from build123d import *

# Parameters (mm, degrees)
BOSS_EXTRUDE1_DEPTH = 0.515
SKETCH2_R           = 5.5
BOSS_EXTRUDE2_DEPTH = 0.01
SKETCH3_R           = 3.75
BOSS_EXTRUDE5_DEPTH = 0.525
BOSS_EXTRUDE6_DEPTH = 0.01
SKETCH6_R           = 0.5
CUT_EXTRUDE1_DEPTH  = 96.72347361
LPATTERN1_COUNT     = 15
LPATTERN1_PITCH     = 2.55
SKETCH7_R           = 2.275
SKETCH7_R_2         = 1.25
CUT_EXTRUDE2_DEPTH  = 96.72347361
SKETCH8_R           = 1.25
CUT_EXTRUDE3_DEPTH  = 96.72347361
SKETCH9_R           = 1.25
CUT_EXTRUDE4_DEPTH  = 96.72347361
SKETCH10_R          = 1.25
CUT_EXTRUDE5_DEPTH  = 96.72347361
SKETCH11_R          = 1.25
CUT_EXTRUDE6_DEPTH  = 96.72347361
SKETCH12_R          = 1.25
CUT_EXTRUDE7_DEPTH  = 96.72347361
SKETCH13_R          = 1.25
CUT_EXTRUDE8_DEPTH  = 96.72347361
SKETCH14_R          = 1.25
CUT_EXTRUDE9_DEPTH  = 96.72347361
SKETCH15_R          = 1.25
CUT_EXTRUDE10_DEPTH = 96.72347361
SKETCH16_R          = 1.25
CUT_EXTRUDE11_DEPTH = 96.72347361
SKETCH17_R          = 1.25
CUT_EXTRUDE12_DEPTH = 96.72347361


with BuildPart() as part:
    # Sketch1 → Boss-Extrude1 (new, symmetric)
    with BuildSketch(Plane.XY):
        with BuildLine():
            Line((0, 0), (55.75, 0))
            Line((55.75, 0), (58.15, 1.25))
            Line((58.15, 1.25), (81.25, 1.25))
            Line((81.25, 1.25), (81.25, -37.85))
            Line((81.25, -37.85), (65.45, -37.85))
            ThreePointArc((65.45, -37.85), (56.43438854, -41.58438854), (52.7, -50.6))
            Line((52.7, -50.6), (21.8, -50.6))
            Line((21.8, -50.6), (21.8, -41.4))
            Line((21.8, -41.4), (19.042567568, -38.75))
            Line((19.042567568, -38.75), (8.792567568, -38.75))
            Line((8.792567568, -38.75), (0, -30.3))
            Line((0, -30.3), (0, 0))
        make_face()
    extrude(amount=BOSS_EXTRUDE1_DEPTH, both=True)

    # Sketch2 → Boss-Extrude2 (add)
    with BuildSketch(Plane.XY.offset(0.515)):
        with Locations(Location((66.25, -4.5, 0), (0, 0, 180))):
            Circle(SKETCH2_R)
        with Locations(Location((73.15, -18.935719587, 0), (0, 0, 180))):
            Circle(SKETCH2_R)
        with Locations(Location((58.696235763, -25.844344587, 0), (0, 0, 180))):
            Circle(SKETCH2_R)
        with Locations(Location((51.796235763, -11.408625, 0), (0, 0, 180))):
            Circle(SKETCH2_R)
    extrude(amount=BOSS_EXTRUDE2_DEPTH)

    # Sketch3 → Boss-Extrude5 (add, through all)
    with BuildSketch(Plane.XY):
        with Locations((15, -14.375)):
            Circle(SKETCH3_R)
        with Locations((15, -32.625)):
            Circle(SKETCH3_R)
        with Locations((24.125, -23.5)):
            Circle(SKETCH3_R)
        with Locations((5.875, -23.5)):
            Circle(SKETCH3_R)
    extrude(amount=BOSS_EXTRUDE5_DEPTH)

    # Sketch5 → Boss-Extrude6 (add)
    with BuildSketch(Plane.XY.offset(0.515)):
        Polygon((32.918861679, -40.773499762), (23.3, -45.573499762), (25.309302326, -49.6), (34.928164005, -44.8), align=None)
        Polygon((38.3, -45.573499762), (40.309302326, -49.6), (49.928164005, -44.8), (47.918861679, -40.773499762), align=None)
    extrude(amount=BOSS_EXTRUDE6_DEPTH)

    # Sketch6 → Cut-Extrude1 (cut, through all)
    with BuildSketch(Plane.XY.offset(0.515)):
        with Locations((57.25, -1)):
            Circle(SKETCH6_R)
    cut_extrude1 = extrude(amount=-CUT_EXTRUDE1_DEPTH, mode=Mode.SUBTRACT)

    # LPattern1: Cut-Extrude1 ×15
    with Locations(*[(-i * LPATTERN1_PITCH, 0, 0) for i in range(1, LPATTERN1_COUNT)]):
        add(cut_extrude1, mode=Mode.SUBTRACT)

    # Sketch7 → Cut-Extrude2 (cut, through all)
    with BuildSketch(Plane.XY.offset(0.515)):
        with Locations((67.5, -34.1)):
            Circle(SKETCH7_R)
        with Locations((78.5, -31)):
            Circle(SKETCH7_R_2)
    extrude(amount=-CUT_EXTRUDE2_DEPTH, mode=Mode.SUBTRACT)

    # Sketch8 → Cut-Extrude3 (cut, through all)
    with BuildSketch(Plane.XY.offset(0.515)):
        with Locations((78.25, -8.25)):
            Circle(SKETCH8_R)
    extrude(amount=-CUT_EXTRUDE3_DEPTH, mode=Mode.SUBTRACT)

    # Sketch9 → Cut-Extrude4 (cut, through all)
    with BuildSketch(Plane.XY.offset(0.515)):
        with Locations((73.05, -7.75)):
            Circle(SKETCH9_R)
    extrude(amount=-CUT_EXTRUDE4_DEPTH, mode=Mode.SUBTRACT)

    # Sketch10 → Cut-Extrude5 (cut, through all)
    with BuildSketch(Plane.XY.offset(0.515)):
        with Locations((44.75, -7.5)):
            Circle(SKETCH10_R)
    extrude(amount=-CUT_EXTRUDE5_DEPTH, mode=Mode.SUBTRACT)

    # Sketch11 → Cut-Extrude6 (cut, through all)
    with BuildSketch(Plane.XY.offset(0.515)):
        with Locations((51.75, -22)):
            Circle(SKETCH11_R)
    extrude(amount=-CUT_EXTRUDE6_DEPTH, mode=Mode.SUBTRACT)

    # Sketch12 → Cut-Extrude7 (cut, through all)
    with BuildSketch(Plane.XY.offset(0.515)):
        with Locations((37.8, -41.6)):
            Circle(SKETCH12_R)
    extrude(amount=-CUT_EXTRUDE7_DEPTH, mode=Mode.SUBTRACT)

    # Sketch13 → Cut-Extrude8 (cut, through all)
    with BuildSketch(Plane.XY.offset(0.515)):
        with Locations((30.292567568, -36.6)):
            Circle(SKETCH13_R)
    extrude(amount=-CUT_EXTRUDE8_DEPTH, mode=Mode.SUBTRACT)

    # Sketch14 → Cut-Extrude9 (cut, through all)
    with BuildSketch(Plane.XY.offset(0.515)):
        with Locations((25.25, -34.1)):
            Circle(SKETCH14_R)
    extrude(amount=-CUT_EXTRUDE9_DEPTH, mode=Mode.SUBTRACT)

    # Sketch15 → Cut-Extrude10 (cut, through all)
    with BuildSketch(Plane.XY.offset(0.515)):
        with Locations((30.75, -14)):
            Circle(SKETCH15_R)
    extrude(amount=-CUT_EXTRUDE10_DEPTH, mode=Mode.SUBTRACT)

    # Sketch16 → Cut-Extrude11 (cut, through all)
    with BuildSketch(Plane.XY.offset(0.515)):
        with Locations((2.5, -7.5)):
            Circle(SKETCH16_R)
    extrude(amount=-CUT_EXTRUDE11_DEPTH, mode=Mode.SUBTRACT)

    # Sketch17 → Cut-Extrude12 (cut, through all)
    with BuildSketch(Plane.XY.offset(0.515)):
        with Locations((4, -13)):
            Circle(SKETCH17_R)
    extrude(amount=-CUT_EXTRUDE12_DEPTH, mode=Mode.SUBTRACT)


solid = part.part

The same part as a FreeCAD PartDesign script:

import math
import FreeCAD as App
import Part
import Sketcher
from FreeCAD import Vector
Q = App.Units.Quantity

doc = App.newDocument("Part")
body = doc.addObject("PartDesign::Body", "Body")

# Sketch on XY plane
sketch1 = doc.addObject("Sketcher::SketchObject", "Sketch")
body.addObject(sketch1)
sketch1.AttachmentSupport = (doc.XY_Plane, [""])
sketch1.MapMode = "FlatFace"
sketch1.addGeometry(Part.LineSegment(Vector(55.8, 0, 0), Vector(0, 0, 0)), False)
sketch1.addGeometry(Part.LineSegment(Vector(0, 0, 0), Vector(0, -30.3, 0)), False)
sketch1.addGeometry(Part.LineSegment(Vector(0, -30.3, 0), Vector(8.8, -38.8, 0)), False)
sketch1.addGeometry(Part.LineSegment(Vector(8.8, -38.8, 0), Vector(19, -38.8, 0)), False)
sketch1.addGeometry(Part.LineSegment(Vector(19, -38.8, 0), Vector(21.8, -41.4, 0)), False)
sketch1.addGeometry(Part.LineSegment(Vector(21.8, -41.4, 0), Vector(21.8, -50.6, 0)), False)
sketch1.addGeometry(Part.LineSegment(Vector(21.8, -50.6, 0), Vector(52.7, -50.6, 0)), False)
sketch1.addGeometry(Part.ArcOfCircle(Part.Circle(Vector(65.5, -50.6, 0), Vector(0, 0, 1), 12.8), math.radians(90), math.radians(180)), False)
sketch1.addGeometry(Part.LineSegment(Vector(65.5, -37.9, 0), Vector(81.2, -37.9, 0)), False)
sketch1.addGeometry(Part.LineSegment(Vector(81.2, -37.9, 0), Vector(81.2, 1.2, 0)), False)
sketch1.addGeometry(Part.LineSegment(Vector(81.2, 1.2, 0), Vector(58.1, 1.2, 0)), False)
sketch1.addGeometry(Part.LineSegment(Vector(58.1, 1.2, 0), Vector(55.8, 0, 0)), False)
sketch1.addConstraint(Sketcher.Constraint("Coincident", 0, 2, 1, 1))
sketch1.addConstraint(Sketcher.Constraint("Coincident", 1, 2, 2, 1))
sketch1.addConstraint(Sketcher.Constraint("Coincident", 2, 2, 3, 1))
sketch1.addConstraint(Sketcher.Constraint("Coincident", 3, 2, 4, 1))
sketch1.addConstraint(Sketcher.Constraint("Coincident", 4, 2, 5, 1))
sketch1.addConstraint(Sketcher.Constraint("Coincident", 5, 2, 6, 1))
sketch1.addConstraint(Sketcher.Constraint("Coincident", 6, 2, 7, 2))
sketch1.addConstraint(Sketcher.Constraint("Tangent", 7, 1, 8, 1))
sketch1.addConstraint(Sketcher.Constraint("Coincident", 8, 2, 9, 1))
sketch1.addConstraint(Sketcher.Constraint("Coincident", 9, 2, 10, 1))
sketch1.addConstraint(Sketcher.Constraint("Coincident", 10, 2, 11, 1))
sketch1.addConstraint(Sketcher.Constraint("Coincident", 11, 2, 0, 1))
sketch1.addConstraint(Sketcher.Constraint("Horizontal", 0))
sketch1.addConstraint(Sketcher.Constraint("Vertical", 1))
sketch1.addConstraint(Sketcher.Constraint("Horizontal", 3))
sketch1.addConstraint(Sketcher.Constraint("Vertical", 5))
sketch1.addConstraint(Sketcher.Constraint("Horizontal", 6))
sketch1.addConstraint(Sketcher.Constraint("Horizontal", 8))
sketch1.addConstraint(Sketcher.Constraint("Vertical", 9))
sketch1.addConstraint(Sketcher.Constraint("Horizontal", 10))
sketch1.addConstraint(Sketcher.Constraint("Coincident", 0, 2, -1, 1))
sketch1.addConstraint(Sketcher.Constraint("Parallel", 2, 4))
sketch1.addConstraint(Sketcher.Constraint("Horizontal", 7, 3, 5, 2))
sketch1.addConstraint(Sketcher.Constraint("Radius", 7, Q("12.75 mm")))
sketch1.addConstraint(Sketcher.Constraint("DistanceX", 6, 1, 6, 2, Q("30.9 mm")))
sketch1.addConstraint(Sketcher.Constraint("DistanceX", 8, 1, 8, 2, Q("15.8 mm")))
sketch1.addConstraint(Sketcher.Constraint("DistanceX", 10, 2, 10, 1, Q("23.1 mm")))
sketch1.addConstraint(Sketcher.Constraint("DistanceY", 1, 2, 1, 1, Q("30.3 mm")))
sketch1.addConstraint(Sketcher.Constraint("DistanceY", 5, 2, 5, 1, Q("9.2 mm")))
sketch1.addConstraint(Sketcher.Constraint("DistanceY", 9, 1, 9, 2, Q("39.1 mm")))
sketch1.addConstraint(Sketcher.Constraint("DistanceX", 0, 2, 0, 1, Q("55.75 mm")))
sketch1.addConstraint(Sketcher.Constraint("DistanceX", 3, 1, 3, 2, Q("10.25 mm")))
sketch1.addConstraint(Sketcher.Constraint("DistanceY", 7, 3, -1, 1, Q("50.6 mm")))
sketch1.addConstraint(Sketcher.Constraint("DistanceX", -1, 1, 4, 2, Q("21.8 mm")))
sketch1.addConstraint(Sketcher.Constraint("DistanceY", 3, 2, 7, 1, Q("0.9 mm")))
pad1 = doc.addObject("PartDesign::Pad", "Pad")
body.addObject(pad1)
pad1.Profile = sketch1
pad1.Length = 1.03
pad1.Midplane = True

# Sketch on XY plane
sketch2 = doc.addObject("Sketcher::SketchObject", "Sketch001")
body.addObject(sketch2)
sketch2.AttachmentSupport = (doc.XY_Plane, [""])
sketch2.MapMode = "FlatFace"
sketch2.AttachmentOffset = App.Placement(Vector(0, 0, 0.515), App.Rotation())
sketch2.addGeometry(Part.Circle(Vector(66, -4, 0), Vector(0, 0, 1), 6), False)
sketch2.addGeometry(Part.Circle(Vector(73, -19, 0), Vector(0, 0, 1), 6), False)
sketch2.addGeometry(Part.Circle(Vector(59, -26, 0), Vector(0, 0, 1), 6), False)
sketch2.addGeometry(Part.Circle(Vector(52, -11, 0), Vector(0, 0, 1), 6), False)
sketch2.addConstraint(Sketcher.Constraint("Equal", 0, 1))
sketch2.addConstraint(Sketcher.Constraint("Equal", 1, 2))
sketch2.addConstraint(Sketcher.Constraint("Equal", 2, 3))
sketch2.addConstraint(Sketcher.Constraint("Diameter", 0, Q("11 mm")))
sketch2.addConstraint(Sketcher.Constraint("DistanceY", 0, 3, -1, 1, Q("4.5 mm")))
sketch2.addConstraint(Sketcher.Constraint("DistanceX", 0, 3, 1, 3, Q("6.9 mm")))
sketch2.addConstraint(Sketcher.Constraint("DistanceX", 3, 3, 2, 3, Q("6.9 mm")))
sketch2.addConstraint(Sketcher.Constraint("DistanceX", -1, 1, 0, 3, Q("66.25 mm")))
sketch2.addConstraint(Sketcher.Constraint("DistanceY", 1, 3, -1, 1, Q("18.93572 mm")))
sketch2.addConstraint(Sketcher.Constraint("DistanceY", 2, 3, 3, 3, Q("14.43572 mm")))
sketch2.addConstraint(Sketcher.Constraint("DistanceX", -1, 1, 2, 3, Q("58.696236 mm")))
sketch2.addConstraint(Sketcher.Constraint("DistanceY", 2, 3, -1, 1, Q("25.844345 mm")))
pad2 = doc.addObject("PartDesign::Pad", "Pad001")
body.addObject(pad2)
pad2.Profile = sketch2
pad2.Length = 0.01

# Sketch on XY plane
sketch3 = doc.addObject("Sketcher::SketchObject", "Sketch002")
body.addObject(sketch3)
sketch3.AttachmentSupport = (doc.XY_Plane, [""])
sketch3.MapMode = "FlatFace"
sketch3.addGeometry(Part.Circle(Vector(15, -14.4, 0), Vector(0, 0, 1), 3.8), False)
sketch3.addGeometry(Part.Circle(Vector(15, -32.6, 0), Vector(0, 0, 1), 3.8), False)
sketch3.addGeometry(Part.Circle(Vector(24.1, -23.5, 0), Vector(0, 0, 1), 3.8), False)
sketch3.addGeometry(Part.Circle(Vector(5.9, -23.5, 0), Vector(0, 0, 1), 3.8), False)
sketch3.addConstraint(Sketcher.Constraint("Equal", 0, 1))
sketch3.addConstraint(Sketcher.Constraint("Equal", 1, 2))
sketch3.addConstraint(Sketcher.Constraint("Equal", 2, 3))
sketch3.addConstraint(Sketcher.Constraint("Horizontal", 2, 3, 3, 3))
sketch3.addConstraint(Sketcher.Constraint("Vertical", 0, 3, 1, 3))
sketch3.addConstraint(Sketcher.Constraint("Diameter", 0, Q("7.5 mm")))
sketch3.addConstraint(Sketcher.Constraint("DistanceX", -1, 1, 0, 3, Q("15 mm")))
sketch3.addConstraint(Sketcher.Constraint("DistanceY", 2, 3, -1, 1, Q("23.5 mm")))
sketch3.addConstraint(Sketcher.Constraint("DistanceY", 1, 3, 0, 3, Q("18.25 mm")))
sketch3.addConstraint(Sketcher.Constraint("DistanceX", 3, 3, 2, 3, Q("18.25 mm")))
sketch3.addConstraint(Sketcher.Constraint("DistanceY", 0, 3, -1, 1, Q("14.375 mm")))
sketch3.addConstraint(Sketcher.Constraint("DistanceX", -1, 1, 2, 3, Q("24.125 mm")))
pad3 = doc.addObject("PartDesign::Pad", "Pad002")
body.addObject(pad3)
pad3.Profile = sketch3
pad3.Length = 0.525

# Sketch on XY plane
sketch4 = doc.addObject("Sketcher::SketchObject", "Sketch003")
body.addObject(sketch4)
sketch4.AttachmentSupport = (doc.XY_Plane, [""])
sketch4.MapMode = "FlatFace"
sketch4.AttachmentOffset = App.Placement(Vector(0, 0, 0.515), App.Rotation())
sketch4.addGeometry(Part.LineSegment(Vector(32.9, -40.8, 0), Vector(23.3, -45.6, 0)), False)
sketch4.addGeometry(Part.LineSegment(Vector(23.3, -45.6, 0), Vector(25.3, -49.6, 0)), False)
sketch4.addGeometry(Part.LineSegment(Vector(25.3, -49.6, 0), Vector(34.9, -44.8, 0)), False)
sketch4.addGeometry(Part.LineSegment(Vector(34.9, -44.8, 0), Vector(32.9, -40.8, 0)), False)
sketch4.addGeometry(Part.LineSegment(Vector(38.3, -45.6, 0), Vector(40.3, -49.6, 0)), False)
sketch4.addGeometry(Part.LineSegment(Vector(40.3, -49.6, 0), Vector(49.9, -44.8, 0)), False)
sketch4.addGeometry(Part.LineSegment(Vector(49.9, -44.8, 0), Vector(47.9, -40.8, 0)), False)
sketch4.addGeometry(Part.LineSegment(Vector(47.9, -40.8, 0), Vector(38.3, -45.6, 0)), False)
sketch4.addConstraint(Sketcher.Constraint("Coincident", 0, 2, 1, 1))
sketch4.addConstraint(Sketcher.Constraint("Coincident", 1, 2, 2, 1))
sketch4.addConstraint(Sketcher.Constraint("Coincident", 2, 2, 3, 1))
sketch4.addConstraint(Sketcher.Constraint("Coincident", 3, 2, 0, 1))
sketch4.addConstraint(Sketcher.Constraint("Coincident", 4, 2, 5, 1))
sketch4.addConstraint(Sketcher.Constraint("Coincident", 5, 2, 6, 1))
sketch4.addConstraint(Sketcher.Constraint("Coincident", 6, 2, 7, 1))
sketch4.addConstraint(Sketcher.Constraint("Coincident", 7, 2, 4, 1))
sketch4.addConstraint(Sketcher.Constraint("Perpendicular", 0, 1))
sketch4.addConstraint(Sketcher.Constraint("Perpendicular", 1, 2))
sketch4.addConstraint(Sketcher.Constraint("Perpendicular", 2, 3))
sketch4.addConstraint(Sketcher.Constraint("Parallel", 3, 4))
sketch4.addConstraint(Sketcher.Constraint("Perpendicular", 4, 5))
sketch4.addConstraint(Sketcher.Constraint("Perpendicular", 5, 6))
sketch4.addConstraint(Sketcher.Constraint("Perpendicular", 6, 7))
sketch4.addConstraint(Sketcher.Constraint("Horizontal", 1, 2, 4, 2))
sketch4.addConstraint(Sketcher.Constraint("Horizontal", 2, 2, 5, 2))
sketch4.addConstraint(Sketcher.Constraint("Horizontal", 3, 2, 6, 2))
sketch4.addConstraint(Sketcher.Constraint("DistanceX", 1, 2, 4, 2, Q("15 mm")))
sketch4.addConstraint(Sketcher.Constraint("Distance", 1, Q("4.5 mm")))
sketch4.addConstraint(Sketcher.Constraint("DistanceX", -1, 1, 0, 2, Q("23.3 mm")))
sketch4.addConstraint(Sketcher.Constraint("DistanceY", 1, 2, -1, 1, Q("49.6 mm")))
sketch4.addConstraint(Sketcher.Constraint("DistanceY", 2, 2, -1, 1, Q("44.8 mm")))
sketch4.addConstraint(Sketcher.Constraint("Distance", 0, Q("10.75 mm")))
pad4 = doc.addObject("PartDesign::Pad", "Pad003")
body.addObject(pad4)
pad4.Profile = sketch4
pad4.Length = 0.01

# Sketch on XY plane
sketch5 = doc.addObject("Sketcher::SketchObject", "Sketch004")
body.addObject(sketch5)
sketch5.AttachmentSupport = (doc.XY_Plane, [""])
sketch5.MapMode = "FlatFace"
sketch5.AttachmentOffset = App.Placement(Vector(0, 0, 0.515), App.Rotation())
sketch5.addGeometry(Part.Circle(Vector(57.2, -1, 0), Vector(0, 0, 1), 0.5), False)
sketch5.addConstraint(Sketcher.Constraint("Diameter", 0, Q("1 mm")))
sketch5.addConstraint(Sketcher.Constraint("DistanceY", 0, 3, -1, 1, Q("1 mm")))
sketch5.addConstraint(Sketcher.Constraint("DistanceX", -1, 1, 0, 3, Q("57.25 mm")))
pocket1 = doc.addObject("PartDesign::Pocket", "Pocket")
body.addObject(pocket1)
pocket1.Profile = sketch5
pocket1.Type = "ThroughAll"
doc.recompute()

linearpattern = doc.addObject("PartDesign::LinearPattern", "LinearPattern")
body.addObject(linearpattern)
linearpattern.Originals = [pocket1]
linearpattern.Direction = (doc.X_Axis, [""])
linearpattern.Mode = "offset"
linearpattern.Offset = 2.55
linearpattern.Occurrences = 15
linearpattern.Reversed = True
body.Tip = linearpattern

# Sketch on XY plane
sketch6 = doc.addObject("Sketcher::SketchObject", "Sketch005")
body.addObject(sketch6)
sketch6.AttachmentSupport = (doc.XY_Plane, [""])
sketch6.MapMode = "FlatFace"
sketch6.AttachmentOffset = App.Placement(Vector(0, 0, 0.515), App.Rotation())
sketch6.addGeometry(Part.Circle(Vector(67.5, -34.1, 0), Vector(0, 0, 1), 2.3), False)
sketch6.addGeometry(Part.Circle(Vector(78.5, -31, 0), Vector(0, 0, 1), 1.2), False)
sketch6.addConstraint(Sketcher.Constraint("Diameter", 1, Q("2.5 mm")))
sketch6.addConstraint(Sketcher.Constraint("Diameter", 0, Q("4.55 mm")))
sketch6.addConstraint(Sketcher.Constraint("DistanceY", 1, 3, -1, 1, Q("31 mm")))
sketch6.addConstraint(Sketcher.Constraint("DistanceX", 0, 3, 1, 3, Q("11 mm")))
sketch6.addConstraint(Sketcher.Constraint("DistanceX", -1, 1, 0, 3, Q("67.5 mm")))
sketch6.addConstraint(Sketcher.Constraint("DistanceY", 0, 3, -1, 1, Q("34.1 mm")))
pocket2 = doc.addObject("PartDesign::Pocket", "Pocket001")
body.addObject(pocket2)
pocket2.Profile = sketch6
pocket2.Type = "ThroughAll"

# Sketch on XY plane
sketch7 = doc.addObject("Sketcher::SketchObject", "Sketch006")
body.addObject(sketch7)
sketch7.AttachmentSupport = (doc.XY_Plane, [""])
sketch7.MapMode = "FlatFace"
sketch7.AttachmentOffset = App.Placement(Vector(0, 0, 0.515), App.Rotation())
sketch7.addGeometry(Part.Circle(Vector(78.2, -8.2, 0), Vector(0, 0, 1), 1.2), False)
sketch7.addConstraint(Sketcher.Constraint("Diameter", 0, Q("2.5 mm")))
sketch7.addConstraint(Sketcher.Constraint("DistanceX", -1, 1, 0, 3, Q("78.25 mm")))
sketch7.addConstraint(Sketcher.Constraint("DistanceY", 0, 3, -1, 1, Q("8.25 mm")))
pocket3 = doc.addObject("PartDesign::Pocket", "Pocket002")
body.addObject(pocket3)
pocket3.Profile = sketch7
pocket3.Type = "ThroughAll"

# Sketch on XY plane
sketch8 = doc.addObject("Sketcher::SketchObject", "Sketch007")
body.addObject(sketch8)
sketch8.AttachmentSupport = (doc.XY_Plane, [""])
sketch8.MapMode = "FlatFace"
sketch8.AttachmentOffset = App.Placement(Vector(0, 0, 0.515), App.Rotation())
sketch8.addGeometry(Part.Circle(Vector(73, -7.8, 0), Vector(0, 0, 1), 1.2), False)
sketch8.addConstraint(Sketcher.Constraint("Diameter", 0, Q("2.5 mm")))
sketch8.addConstraint(Sketcher.Constraint("DistanceX", -1, 1, 0, 3, Q("73.05 mm")))
sketch8.addConstraint(Sketcher.Constraint("DistanceY", 0, 3, -1, 1, Q("7.75 mm")))
pocket4 = doc.addObject("PartDesign::Pocket", "Pocket003")
body.addObject(pocket4)
pocket4.Profile = sketch8
pocket4.Type = "ThroughAll"

# Sketch on XY plane
sketch9 = doc.addObject("Sketcher::SketchObject", "Sketch008")
body.addObject(sketch9)
sketch9.AttachmentSupport = (doc.XY_Plane, [""])
sketch9.MapMode = "FlatFace"
sketch9.AttachmentOffset = App.Placement(Vector(0, 0, 0.515), App.Rotation())
sketch9.addGeometry(Part.Circle(Vector(44.8, -7.5, 0), Vector(0, 0, 1), 1.2), False)
sketch9.addConstraint(Sketcher.Constraint("Diameter", 0, Q("2.5 mm")))
sketch9.addConstraint(Sketcher.Constraint("DistanceY", 0, 3, -1, 1, Q("7.5 mm")))
sketch9.addConstraint(Sketcher.Constraint("DistanceX", -1, 1, 0, 3, Q("44.75 mm")))
pocket5 = doc.addObject("PartDesign::Pocket", "Pocket004")
body.addObject(pocket5)
pocket5.Profile = sketch9
pocket5.Type = "ThroughAll"

# Sketch on XY plane
sketch10 = doc.addObject("Sketcher::SketchObject", "Sketch009")
body.addObject(sketch10)
sketch10.AttachmentSupport = (doc.XY_Plane, [""])
sketch10.MapMode = "FlatFace"
sketch10.AttachmentOffset = App.Placement(Vector(0, 0, 0.515), App.Rotation())
sketch10.addGeometry(Part.Circle(Vector(51.8, -22, 0), Vector(0, 0, 1), 1.2), False)
sketch10.addConstraint(Sketcher.Constraint("Diameter", 0, Q("2.5 mm")))
sketch10.addConstraint(Sketcher.Constraint("DistanceY", 0, 3, -1, 1, Q("22 mm")))
sketch10.addConstraint(Sketcher.Constraint("DistanceX", -1, 1, 0, 3, Q("51.75 mm")))
pocket6 = doc.addObject("PartDesign::Pocket", "Pocket005")
body.addObject(pocket6)
pocket6.Profile = sketch10
pocket6.Type = "ThroughAll"

# Sketch on XY plane
sketch11 = doc.addObject("Sketcher::SketchObject", "Sketch010")
body.addObject(sketch11)
sketch11.AttachmentSupport = (doc.XY_Plane, [""])
sketch11.MapMode = "FlatFace"
sketch11.AttachmentOffset = App.Placement(Vector(0, 0, 0.515), App.Rotation())
sketch11.addGeometry(Part.Circle(Vector(37.8, -41.6, 0), Vector(0, 0, 1), 1.2), False)
sketch11.addConstraint(Sketcher.Constraint("Diameter", 0, Q("2.5 mm")))
sketch11.addConstraint(Sketcher.Constraint("DistanceX", -1, 1, 0, 3, Q("37.8 mm")))
sketch11.addConstraint(Sketcher.Constraint("DistanceY", 0, 3, -1, 1, Q("41.6 mm")))
pocket7 = doc.addObject("PartDesign::Pocket", "Pocket006")
body.addObject(pocket7)
pocket7.Profile = sketch11
pocket7.Type = "ThroughAll"

# Sketch on XY plane
sketch12 = doc.addObject("Sketcher::SketchObject", "Sketch011")
body.addObject(sketch12)
sketch12.AttachmentSupport = (doc.XY_Plane, [""])
sketch12.MapMode = "FlatFace"
sketch12.AttachmentOffset = App.Placement(Vector(0, 0, 0.515), App.Rotation())
sketch12.addGeometry(Part.Circle(Vector(30.3, -36.6, 0), Vector(0, 0, 1), 1.2), False)
sketch12.addConstraint(Sketcher.Constraint("Diameter", 0, Q("2.5 mm")))
sketch12.addConstraint(Sketcher.Constraint("DistanceY", 0, 3, -1, 1, Q("36.6 mm")))
sketch12.addConstraint(Sketcher.Constraint("DistanceX", -1, 1, 0, 3, Q("30.292568 mm")))
pocket8 = doc.addObject("PartDesign::Pocket", "Pocket007")
body.addObject(pocket8)
pocket8.Profile = sketch12
pocket8.Type = "ThroughAll"

# Sketch on XY plane
sketch13 = doc.addObject("Sketcher::SketchObject", "Sketch012")
body.addObject(sketch13)
sketch13.AttachmentSupport = (doc.XY_Plane, [""])
sketch13.MapMode = "FlatFace"
sketch13.AttachmentOffset = App.Placement(Vector(0, 0, 0.515), App.Rotation())
sketch13.addGeometry(Part.Circle(Vector(25.2, -34.1, 0), Vector(0, 0, 1), 1.2), False)
sketch13.addConstraint(Sketcher.Constraint("Diameter", 0, Q("2.5 mm")))
sketch13.addConstraint(Sketcher.Constraint("DistanceY", 0, 3, -1, 1, Q("34.1 mm")))
sketch13.addConstraint(Sketcher.Constraint("DistanceX", -1, 1, 0, 3, Q("25.25 mm")))
pocket9 = doc.addObject("PartDesign::Pocket", "Pocket008")
body.addObject(pocket9)
pocket9.Profile = sketch13
pocket9.Type = "ThroughAll"

# Sketch on XY plane
sketch14 = doc.addObject("Sketcher::SketchObject", "Sketch013")
body.addObject(sketch14)
sketch14.AttachmentSupport = (doc.XY_Plane, [""])
sketch14.MapMode = "FlatFace"
sketch14.AttachmentOffset = App.Placement(Vector(0, 0, 0.515), App.Rotation())
sketch14.addGeometry(Part.Circle(Vector(30.8, -14, 0), Vector(0, 0, 1), 1.2), False)
sketch14.addConstraint(Sketcher.Constraint("Diameter", 0, Q("2.5 mm")))
sketch14.addConstraint(Sketcher.Constraint("DistanceY", 0, 3, -1, 1, Q("14 mm")))
sketch14.addConstraint(Sketcher.Constraint("DistanceX", -1, 1, 0, 3, Q("30.75 mm")))
pocket10 = doc.addObject("PartDesign::Pocket", "Pocket009")
body.addObject(pocket10)
pocket10.Profile = sketch14
pocket10.Type = "ThroughAll"

# Sketch on XY plane
sketch15 = doc.addObject("Sketcher::SketchObject", "Sketch014")
body.addObject(sketch15)
sketch15.AttachmentSupport = (doc.XY_Plane, [""])
sketch15.MapMode = "FlatFace"
sketch15.AttachmentOffset = App.Placement(Vector(0, 0, 0.515), App.Rotation())
sketch15.addGeometry(Part.Circle(Vector(2.5, -7.5, 0), Vector(0, 0, 1), 1.2), False)
sketch15.addConstraint(Sketcher.Constraint("Diameter", 0, Q("2.5 mm")))
sketch15.addConstraint(Sketcher.Constraint("DistanceX", -1, 1, 0, 3, Q("2.5 mm")))
sketch15.addConstraint(Sketcher.Constraint("DistanceY", 0, 3, -1, 1, Q("7.5 mm")))
pocket11 = doc.addObject("PartDesign::Pocket", "Pocket010")
body.addObject(pocket11)
pocket11.Profile = sketch15
pocket11.Type = "ThroughAll"

# Sketch on XY plane
sketch16 = doc.addObject("Sketcher::SketchObject", "Sketch015")
body.addObject(sketch16)
sketch16.AttachmentSupport = (doc.XY_Plane, [""])
sketch16.MapMode = "FlatFace"
sketch16.AttachmentOffset = App.Placement(Vector(0, 0, 0.515), App.Rotation())
sketch16.addGeometry(Part.Circle(Vector(4, -13, 0), Vector(0, 0, 1), 1.2), False)
sketch16.addConstraint(Sketcher.Constraint("Diameter", 0, Q("2.5 mm")))
sketch16.addConstraint(Sketcher.Constraint("DistanceX", -1, 1, 0, 3, Q("4 mm")))
sketch16.addConstraint(Sketcher.Constraint("DistanceY", 0, 3, -1, 1, Q("13 mm")))
pocket12 = doc.addObject("PartDesign::Pocket", "Pocket011")
body.addObject(pocket12)
pocket12.Profile = sketch16
pocket12.Type = "ThroughAll"

doc.recompute()
